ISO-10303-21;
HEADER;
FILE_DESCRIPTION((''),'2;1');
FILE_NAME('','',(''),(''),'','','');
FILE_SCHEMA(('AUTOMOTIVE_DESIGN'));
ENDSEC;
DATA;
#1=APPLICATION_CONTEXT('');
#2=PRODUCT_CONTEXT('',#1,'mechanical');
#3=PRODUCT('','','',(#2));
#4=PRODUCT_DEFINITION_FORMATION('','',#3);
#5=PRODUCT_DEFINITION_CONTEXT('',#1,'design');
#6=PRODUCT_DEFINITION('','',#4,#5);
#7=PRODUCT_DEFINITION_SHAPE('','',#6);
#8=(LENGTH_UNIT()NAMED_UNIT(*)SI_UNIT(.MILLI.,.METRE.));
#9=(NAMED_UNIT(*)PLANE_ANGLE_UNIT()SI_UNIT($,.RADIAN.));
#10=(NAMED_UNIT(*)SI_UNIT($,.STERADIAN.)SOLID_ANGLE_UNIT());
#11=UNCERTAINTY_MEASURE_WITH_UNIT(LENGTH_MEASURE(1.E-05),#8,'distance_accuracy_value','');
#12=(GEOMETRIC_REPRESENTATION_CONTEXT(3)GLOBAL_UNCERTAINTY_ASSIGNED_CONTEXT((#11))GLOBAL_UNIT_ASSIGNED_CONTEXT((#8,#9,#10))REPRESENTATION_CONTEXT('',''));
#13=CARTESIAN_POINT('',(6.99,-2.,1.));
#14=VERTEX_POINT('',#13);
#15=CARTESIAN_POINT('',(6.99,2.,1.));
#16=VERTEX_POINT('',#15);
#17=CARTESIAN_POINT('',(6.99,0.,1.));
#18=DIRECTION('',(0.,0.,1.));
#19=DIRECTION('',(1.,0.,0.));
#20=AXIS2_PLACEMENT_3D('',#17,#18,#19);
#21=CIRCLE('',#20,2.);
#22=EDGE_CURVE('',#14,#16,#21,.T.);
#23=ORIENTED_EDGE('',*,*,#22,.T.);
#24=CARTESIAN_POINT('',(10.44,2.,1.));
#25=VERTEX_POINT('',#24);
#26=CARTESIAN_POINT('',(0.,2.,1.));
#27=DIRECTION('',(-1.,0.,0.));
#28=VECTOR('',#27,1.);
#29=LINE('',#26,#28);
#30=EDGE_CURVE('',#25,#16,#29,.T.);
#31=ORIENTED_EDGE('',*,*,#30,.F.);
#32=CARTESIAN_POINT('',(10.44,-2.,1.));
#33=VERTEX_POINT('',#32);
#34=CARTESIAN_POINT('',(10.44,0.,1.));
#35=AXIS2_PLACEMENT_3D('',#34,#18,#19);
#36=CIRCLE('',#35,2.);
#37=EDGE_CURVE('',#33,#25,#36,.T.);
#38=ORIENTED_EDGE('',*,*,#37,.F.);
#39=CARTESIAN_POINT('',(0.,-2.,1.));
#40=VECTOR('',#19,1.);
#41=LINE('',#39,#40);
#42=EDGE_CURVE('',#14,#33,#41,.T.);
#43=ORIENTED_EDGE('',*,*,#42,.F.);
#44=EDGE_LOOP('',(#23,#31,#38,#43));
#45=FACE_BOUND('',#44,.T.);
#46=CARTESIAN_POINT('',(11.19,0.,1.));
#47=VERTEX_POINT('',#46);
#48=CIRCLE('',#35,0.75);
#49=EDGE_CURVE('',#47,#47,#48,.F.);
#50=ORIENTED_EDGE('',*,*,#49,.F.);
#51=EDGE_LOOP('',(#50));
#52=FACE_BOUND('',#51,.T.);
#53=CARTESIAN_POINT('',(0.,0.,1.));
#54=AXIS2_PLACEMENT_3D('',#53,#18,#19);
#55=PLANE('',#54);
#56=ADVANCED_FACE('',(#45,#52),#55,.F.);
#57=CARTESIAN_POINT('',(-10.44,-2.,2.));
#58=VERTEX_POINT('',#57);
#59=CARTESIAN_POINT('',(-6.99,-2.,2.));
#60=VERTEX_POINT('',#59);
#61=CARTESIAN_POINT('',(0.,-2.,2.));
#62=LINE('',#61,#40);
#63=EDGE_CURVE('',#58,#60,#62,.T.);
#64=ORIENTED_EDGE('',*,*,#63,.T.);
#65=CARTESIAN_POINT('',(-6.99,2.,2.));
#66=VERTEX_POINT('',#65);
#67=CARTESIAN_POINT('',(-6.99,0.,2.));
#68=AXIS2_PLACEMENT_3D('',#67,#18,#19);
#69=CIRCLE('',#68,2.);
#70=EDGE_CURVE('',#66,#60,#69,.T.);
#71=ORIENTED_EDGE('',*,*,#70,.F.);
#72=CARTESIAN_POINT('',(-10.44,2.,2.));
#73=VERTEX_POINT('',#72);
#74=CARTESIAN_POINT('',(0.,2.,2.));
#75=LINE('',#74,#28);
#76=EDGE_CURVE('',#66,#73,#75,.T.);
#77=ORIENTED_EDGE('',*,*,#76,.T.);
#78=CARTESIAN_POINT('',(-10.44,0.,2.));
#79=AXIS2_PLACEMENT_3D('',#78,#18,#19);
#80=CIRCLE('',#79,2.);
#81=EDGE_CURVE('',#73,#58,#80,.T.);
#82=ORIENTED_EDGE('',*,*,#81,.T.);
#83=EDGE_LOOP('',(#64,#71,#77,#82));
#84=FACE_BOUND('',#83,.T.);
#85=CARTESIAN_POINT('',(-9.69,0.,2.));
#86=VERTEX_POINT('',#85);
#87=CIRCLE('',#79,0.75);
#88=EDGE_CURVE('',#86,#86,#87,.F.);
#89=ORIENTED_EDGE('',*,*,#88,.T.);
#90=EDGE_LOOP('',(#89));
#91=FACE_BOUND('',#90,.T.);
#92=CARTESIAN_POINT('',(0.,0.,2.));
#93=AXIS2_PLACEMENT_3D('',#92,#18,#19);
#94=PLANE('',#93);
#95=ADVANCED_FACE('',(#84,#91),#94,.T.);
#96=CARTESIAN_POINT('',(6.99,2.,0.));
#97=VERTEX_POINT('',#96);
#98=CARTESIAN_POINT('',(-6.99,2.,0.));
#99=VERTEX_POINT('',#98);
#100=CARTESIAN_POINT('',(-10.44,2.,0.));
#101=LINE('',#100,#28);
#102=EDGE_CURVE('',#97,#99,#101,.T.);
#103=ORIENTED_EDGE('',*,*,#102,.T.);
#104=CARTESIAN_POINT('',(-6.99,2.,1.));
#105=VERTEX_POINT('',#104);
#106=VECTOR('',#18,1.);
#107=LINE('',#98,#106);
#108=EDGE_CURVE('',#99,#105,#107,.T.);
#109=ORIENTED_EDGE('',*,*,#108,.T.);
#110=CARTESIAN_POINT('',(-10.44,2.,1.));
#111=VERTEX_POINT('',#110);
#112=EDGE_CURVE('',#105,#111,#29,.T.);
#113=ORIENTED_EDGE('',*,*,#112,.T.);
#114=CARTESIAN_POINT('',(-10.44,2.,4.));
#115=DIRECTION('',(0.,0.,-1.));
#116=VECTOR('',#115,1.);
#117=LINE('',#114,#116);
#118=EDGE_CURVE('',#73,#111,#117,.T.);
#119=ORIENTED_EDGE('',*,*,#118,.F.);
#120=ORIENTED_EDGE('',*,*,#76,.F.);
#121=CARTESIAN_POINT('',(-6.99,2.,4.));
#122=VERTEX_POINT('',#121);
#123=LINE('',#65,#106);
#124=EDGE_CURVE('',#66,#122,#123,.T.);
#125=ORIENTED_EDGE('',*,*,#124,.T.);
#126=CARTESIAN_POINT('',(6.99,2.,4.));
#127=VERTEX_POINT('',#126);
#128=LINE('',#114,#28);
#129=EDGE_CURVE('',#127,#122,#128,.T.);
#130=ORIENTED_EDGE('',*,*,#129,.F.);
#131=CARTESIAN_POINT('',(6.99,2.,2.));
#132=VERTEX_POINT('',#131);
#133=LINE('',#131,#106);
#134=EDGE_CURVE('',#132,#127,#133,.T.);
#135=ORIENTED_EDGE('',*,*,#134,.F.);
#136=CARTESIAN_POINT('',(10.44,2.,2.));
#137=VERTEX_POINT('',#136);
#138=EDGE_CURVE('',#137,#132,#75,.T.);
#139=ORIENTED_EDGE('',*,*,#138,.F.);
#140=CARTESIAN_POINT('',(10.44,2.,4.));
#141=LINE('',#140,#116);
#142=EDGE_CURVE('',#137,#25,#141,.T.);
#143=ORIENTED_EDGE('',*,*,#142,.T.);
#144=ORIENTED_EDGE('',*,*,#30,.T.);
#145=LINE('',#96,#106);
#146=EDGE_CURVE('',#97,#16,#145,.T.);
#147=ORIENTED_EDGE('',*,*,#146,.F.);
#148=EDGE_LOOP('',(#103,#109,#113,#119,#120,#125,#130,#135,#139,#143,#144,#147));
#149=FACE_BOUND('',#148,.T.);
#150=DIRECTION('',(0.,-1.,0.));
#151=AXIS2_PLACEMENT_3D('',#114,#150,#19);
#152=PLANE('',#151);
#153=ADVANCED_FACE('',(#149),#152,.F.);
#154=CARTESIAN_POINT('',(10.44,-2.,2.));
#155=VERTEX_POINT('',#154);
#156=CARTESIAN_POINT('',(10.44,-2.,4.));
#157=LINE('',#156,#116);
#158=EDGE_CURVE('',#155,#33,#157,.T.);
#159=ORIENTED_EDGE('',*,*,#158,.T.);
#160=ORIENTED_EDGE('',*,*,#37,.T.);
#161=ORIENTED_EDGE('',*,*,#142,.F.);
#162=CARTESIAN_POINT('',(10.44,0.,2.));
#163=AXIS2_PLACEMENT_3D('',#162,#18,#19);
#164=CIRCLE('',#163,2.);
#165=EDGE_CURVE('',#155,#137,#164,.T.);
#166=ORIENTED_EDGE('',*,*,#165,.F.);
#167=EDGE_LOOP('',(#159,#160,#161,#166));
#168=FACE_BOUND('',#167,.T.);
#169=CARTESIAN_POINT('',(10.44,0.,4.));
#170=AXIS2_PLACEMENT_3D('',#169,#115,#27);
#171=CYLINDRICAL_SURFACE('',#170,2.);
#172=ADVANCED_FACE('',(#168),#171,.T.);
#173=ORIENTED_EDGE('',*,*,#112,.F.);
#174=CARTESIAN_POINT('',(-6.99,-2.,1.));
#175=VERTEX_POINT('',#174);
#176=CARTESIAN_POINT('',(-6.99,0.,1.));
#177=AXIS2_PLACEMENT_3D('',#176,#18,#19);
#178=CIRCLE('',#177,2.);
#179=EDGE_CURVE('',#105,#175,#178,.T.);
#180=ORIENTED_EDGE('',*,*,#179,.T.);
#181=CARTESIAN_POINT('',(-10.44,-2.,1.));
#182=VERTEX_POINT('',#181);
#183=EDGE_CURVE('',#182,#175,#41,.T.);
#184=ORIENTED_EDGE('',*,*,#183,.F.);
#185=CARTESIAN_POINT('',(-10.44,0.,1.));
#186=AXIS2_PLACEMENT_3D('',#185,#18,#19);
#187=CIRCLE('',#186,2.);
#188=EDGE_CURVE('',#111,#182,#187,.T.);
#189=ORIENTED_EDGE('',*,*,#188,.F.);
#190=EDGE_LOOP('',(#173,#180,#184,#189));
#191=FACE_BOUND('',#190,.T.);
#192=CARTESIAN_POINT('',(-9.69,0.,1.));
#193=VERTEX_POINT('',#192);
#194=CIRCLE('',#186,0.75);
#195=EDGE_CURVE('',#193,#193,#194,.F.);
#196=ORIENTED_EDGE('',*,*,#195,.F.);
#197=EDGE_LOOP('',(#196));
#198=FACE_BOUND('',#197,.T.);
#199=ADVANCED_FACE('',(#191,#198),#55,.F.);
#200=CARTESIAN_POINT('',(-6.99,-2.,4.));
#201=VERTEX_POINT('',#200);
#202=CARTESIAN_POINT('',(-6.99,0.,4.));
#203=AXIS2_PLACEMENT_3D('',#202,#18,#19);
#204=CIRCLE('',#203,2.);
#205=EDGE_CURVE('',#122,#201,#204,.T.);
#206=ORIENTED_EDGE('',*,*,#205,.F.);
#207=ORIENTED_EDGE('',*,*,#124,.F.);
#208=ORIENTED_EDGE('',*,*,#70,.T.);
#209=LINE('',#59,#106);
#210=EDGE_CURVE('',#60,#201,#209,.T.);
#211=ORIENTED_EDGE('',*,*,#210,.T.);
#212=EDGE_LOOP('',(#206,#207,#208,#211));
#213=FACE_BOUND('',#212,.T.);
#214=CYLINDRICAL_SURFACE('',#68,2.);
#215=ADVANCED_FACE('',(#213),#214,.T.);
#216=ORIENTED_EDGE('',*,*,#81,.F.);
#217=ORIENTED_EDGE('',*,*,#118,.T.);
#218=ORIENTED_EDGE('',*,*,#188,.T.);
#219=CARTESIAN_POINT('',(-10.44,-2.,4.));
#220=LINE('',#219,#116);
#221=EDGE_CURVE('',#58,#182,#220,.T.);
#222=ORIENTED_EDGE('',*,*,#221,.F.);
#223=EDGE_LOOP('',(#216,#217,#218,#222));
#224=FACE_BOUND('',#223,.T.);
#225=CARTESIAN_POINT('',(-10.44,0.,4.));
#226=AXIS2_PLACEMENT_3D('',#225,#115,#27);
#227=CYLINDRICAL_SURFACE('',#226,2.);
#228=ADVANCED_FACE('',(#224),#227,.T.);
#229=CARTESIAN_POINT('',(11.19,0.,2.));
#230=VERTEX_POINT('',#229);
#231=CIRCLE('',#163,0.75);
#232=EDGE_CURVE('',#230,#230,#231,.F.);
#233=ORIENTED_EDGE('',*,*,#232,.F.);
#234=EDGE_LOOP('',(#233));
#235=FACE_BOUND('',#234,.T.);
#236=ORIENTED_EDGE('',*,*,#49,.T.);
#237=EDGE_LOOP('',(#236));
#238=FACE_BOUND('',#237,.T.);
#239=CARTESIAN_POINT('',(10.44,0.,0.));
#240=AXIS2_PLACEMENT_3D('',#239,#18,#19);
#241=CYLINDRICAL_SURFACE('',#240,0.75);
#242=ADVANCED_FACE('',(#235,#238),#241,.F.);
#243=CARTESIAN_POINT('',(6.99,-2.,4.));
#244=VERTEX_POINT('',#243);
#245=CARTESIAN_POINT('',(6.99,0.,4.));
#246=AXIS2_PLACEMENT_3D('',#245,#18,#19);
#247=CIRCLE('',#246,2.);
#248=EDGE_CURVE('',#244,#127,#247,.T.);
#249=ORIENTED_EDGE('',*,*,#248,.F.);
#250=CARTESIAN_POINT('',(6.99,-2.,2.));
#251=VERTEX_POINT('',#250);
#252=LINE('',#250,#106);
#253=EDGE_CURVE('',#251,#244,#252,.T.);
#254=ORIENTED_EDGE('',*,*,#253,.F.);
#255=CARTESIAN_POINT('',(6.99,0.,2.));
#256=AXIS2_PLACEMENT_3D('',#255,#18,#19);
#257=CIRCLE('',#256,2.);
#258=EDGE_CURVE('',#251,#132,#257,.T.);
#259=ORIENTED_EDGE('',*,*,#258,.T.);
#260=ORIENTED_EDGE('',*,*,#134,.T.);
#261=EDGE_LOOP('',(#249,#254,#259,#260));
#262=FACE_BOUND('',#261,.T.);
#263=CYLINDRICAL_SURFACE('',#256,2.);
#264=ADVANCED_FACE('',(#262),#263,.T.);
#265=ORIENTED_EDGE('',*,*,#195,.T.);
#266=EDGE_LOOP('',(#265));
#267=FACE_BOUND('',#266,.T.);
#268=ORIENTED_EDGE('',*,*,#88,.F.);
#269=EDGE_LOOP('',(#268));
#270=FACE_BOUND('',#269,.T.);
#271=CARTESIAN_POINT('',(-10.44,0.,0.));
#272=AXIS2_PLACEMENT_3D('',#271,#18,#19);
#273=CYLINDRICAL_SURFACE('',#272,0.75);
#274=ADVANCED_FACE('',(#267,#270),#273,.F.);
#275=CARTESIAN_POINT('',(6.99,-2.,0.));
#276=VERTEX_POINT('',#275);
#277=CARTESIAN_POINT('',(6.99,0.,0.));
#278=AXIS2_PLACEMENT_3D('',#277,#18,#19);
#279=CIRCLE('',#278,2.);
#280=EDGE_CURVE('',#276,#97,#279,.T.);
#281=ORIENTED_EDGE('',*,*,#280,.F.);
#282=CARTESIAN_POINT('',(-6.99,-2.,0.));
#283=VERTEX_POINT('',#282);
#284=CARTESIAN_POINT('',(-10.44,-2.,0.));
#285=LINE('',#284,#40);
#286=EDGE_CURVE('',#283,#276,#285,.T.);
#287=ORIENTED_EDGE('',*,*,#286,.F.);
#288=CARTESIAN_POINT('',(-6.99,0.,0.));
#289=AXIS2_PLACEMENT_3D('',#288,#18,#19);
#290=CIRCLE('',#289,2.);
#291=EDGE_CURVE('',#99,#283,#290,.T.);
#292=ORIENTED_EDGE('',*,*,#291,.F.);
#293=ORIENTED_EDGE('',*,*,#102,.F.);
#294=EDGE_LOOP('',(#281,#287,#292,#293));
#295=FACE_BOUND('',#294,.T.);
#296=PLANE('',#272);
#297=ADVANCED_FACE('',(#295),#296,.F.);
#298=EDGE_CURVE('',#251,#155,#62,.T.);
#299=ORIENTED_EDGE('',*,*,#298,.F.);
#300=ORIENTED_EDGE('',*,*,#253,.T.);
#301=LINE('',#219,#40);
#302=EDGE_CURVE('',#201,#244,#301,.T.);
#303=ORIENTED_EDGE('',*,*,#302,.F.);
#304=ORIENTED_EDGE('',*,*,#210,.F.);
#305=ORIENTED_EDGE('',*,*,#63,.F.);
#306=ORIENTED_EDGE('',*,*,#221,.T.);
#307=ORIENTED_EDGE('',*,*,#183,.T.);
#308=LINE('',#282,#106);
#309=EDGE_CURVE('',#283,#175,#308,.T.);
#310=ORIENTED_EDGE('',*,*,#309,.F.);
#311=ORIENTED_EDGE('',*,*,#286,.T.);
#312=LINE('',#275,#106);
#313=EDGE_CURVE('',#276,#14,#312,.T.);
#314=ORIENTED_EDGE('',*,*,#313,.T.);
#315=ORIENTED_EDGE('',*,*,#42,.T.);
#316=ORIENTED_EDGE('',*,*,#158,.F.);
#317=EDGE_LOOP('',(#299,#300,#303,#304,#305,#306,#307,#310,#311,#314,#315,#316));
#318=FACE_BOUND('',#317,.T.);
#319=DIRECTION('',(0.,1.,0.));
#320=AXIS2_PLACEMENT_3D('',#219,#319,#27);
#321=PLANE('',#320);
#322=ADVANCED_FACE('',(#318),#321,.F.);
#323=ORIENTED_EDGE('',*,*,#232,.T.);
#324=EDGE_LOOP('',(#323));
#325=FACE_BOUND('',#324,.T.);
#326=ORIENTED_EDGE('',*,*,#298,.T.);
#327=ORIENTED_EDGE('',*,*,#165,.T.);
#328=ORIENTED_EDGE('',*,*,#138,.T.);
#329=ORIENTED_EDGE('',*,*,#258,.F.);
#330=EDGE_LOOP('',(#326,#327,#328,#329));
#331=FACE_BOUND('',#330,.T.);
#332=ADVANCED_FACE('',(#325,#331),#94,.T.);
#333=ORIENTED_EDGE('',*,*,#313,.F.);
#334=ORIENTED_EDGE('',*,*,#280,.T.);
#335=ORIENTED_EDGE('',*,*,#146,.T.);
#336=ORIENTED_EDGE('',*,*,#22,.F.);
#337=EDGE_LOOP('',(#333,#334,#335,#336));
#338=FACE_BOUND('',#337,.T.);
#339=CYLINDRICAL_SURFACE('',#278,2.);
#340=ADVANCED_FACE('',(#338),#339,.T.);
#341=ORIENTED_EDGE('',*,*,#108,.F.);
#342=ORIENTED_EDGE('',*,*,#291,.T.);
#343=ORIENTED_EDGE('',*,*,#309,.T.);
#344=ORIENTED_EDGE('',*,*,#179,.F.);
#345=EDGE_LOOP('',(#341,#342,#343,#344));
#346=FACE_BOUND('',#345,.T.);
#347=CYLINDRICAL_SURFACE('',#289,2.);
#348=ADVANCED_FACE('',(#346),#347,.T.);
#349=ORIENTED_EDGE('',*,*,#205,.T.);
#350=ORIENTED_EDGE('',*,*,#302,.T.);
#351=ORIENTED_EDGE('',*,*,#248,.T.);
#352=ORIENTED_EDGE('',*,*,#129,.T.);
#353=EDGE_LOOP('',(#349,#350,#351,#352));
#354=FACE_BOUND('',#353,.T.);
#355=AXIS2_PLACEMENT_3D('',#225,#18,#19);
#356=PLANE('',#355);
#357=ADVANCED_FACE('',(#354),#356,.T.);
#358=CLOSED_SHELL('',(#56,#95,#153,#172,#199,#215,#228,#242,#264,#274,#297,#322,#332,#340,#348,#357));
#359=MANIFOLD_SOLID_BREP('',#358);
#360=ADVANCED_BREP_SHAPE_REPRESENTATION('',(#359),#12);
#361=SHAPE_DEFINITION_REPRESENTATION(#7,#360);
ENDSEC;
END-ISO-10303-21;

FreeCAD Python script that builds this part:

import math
import FreeCAD as App
import Part
import Sketcher
from FreeCAD import Vector

doc = App.newDocument("Part")
body = doc.addObject("PartDesign::Body", "Body")

# Sketch on XY plane
sketch1 = body.newObject("Sketcher::SketchObject", "Sketch")
sketch1.AttachmentSupport = (doc.getObject("XY_Plane"), [""])
sketch1.MapMode = "FlatFace"
sketch1.addGeometry([
    Part.LineSegment(Vector(10.4, 2, 0), Vector(-10.4, 2, 0)),
    Part.ArcOfCircle(Part.Circle(Vector(-10.4, 0, 0), Vector(0, 0, 1), 2), math.radians(90), math.radians(270)),
    Part.LineSegment(Vector(-10.4, -2, 0), Vector(10.4, -2, 0)),
    Part.ArcOfCircle(Part.Circle(Vector(10.4, 0, 0), Vector(0, 0, 1), 2), math.radians(-90), math.radians(90)),
], False)
sketch1.addConstraint([
    Sketcher.Constraint("Tangent", 0, 2, 1, 1),
    Sketcher.Constraint("Tangent", 1, 2, 2, 1),
    Sketcher.Constraint("Tangent", 2, 2, 3, 1),
    Sketcher.Constraint("Tangent", 3, 2, 0, 1),
    Sketcher.Constraint("Horizontal", 0),
    Sketcher.Constraint("Horizontal", 2),
    Sketcher.Constraint("Symmetric", 1, 3, 3, 3, -1, 1),
    Sketcher.Constraint("Radius", 1, 2.0),
    Sketcher.Constraint("DistanceX", 0, 2, 0, 1, 20.88),
])
pad1 = body.newObject("PartDesign::Pad", "Pad")
pad1.Profile = sketch1
pad1.Length = 4

# Sketch on XY plane
sketch2 = body.newObject("Sketcher::SketchObject", "Sketch001")
sketch2.AttachmentSupport = (doc.getObject("XY_Plane"), [""])
sketch2.MapMode = "FlatFace"
sketch2.AttachmentOffset = App.Placement(Vector(0, 0, 4), App.Rotation())
sketch2.addGeometry([
    Part.Circle(Vector(-10.4, 0, 0), Vector(0, 0, 1), 0.8),
    Part.Circle(Vector(10.4, 0, 0), Vector(0, 0, 1), 0.8),
], False)
sketch2.addConstraint([
    Sketcher.Constraint("Equal", 0, 1),
    Sketcher.Constraint("Symmetric", 0, 3, 1, 3, -1, 1),
    Sketcher.Constraint("PointOnObject", 0, 3, -1),
    Sketcher.Constraint("Diameter", 0, 1.5),
    Sketcher.Constraint("DistanceX", 0, 3, -1, 1, 10.44),
])
pocket1 = body.newObject("PartDesign::Pocket", "Pocket")
pocket1.Profile = sketch2
pocket1.Length = 4

# Sketch on XY plane
sketch3 = body.newObject("Sketcher::SketchObject", "Sketch002")
sketch3.AttachmentSupport = (doc.getObject("XY_Plane"), [""])
sketch3.MapMode = "FlatFace"
sketch3.AttachmentOffset = App.Placement(Vector(0, 0, 4), App.Rotation())
sketch3.addGeometry([
    Part.ArcOfCircle(Part.Circle(Vector(-7, 0, 0), Vector(0, 0, 1), 2), math.radians(90), math.radians(270)),  # 0
    Part.LineSegment(Vector(-7, 2, 0), Vector(-10.4, 2, 0)),  # 1
    Part.ArcOfCircle(Part.Circle(Vector(-10.4, 0, 0), Vector(0, 0, 1), 2), math.radians(90), math.radians(270)),  # 2
    Part.LineSegment(Vector(-10.4, -2, 0), Vector(-7, -2, 0)),  # 3
    Part.Circle(Vector(-10.4, 0, 0), Vector(0, 0, 1), 0.8),  # 4
    Part.LineSegment(Vector(10.4, 2, 0), Vector(7, 2, 0)),  # 5
    Part.ArcOfCircle(Part.Circle(Vector(7, 0, 0), Vector(0, 0, 1), 2), math.radians(-90), math.radians(90)),  # 6
    Part.LineSegment(Vector(7, -2, 0), Vector(10.4, -2, 0)),  # 7
    Part.ArcOfCircle(Part.Circle(Vector(10.4, 0, 0), Vector(0, 0, 1), 2), math.radians(-90), math.radians(90)),  # 8
    Part.Circle(Vector(10.4, 0, 0), Vector(0, 0, 1), 0.8),  # 9
], False)
sketch3.addConstraint([
    Sketcher.Constraint("Tangent", 0, 1, 1, 1),
    Sketcher.Constraint("Tangent", 1, 2, 2, 1),
    Sketcher.Constraint("Tangent", 2, 2, 3, 1),
    Sketcher.Constraint("Tangent", 3, 2, 0, 2),
    Sketcher.Constraint("Tangent", 5, 2, 6, 2),
    Sketcher.Constraint("Tangent", 6, 1, 7, 1),
    Sketcher.Constraint("Tangent", 7, 2, 8, 1),
    Sketcher.Constraint("Tangent", 8, 2, 5, 1),
    Sketcher.Constraint("Horizontal", 1),
    Sketcher.Constraint("Horizontal", 3),
    Sketcher.Constraint("Horizontal", 5),
    Sketcher.Constraint("Horizontal", 7),
    Sketcher.Constraint("Coincident", 4, 3, 2, 3),
    Sketcher.Constraint("Coincident", 9, 3, 8, 3),
    Sketcher.Constraint("Equal", 2, 6),
    Sketcher.Constraint("Equal", 4, 9),
    Sketcher.Constraint("Symmetric", 0, 3, 6, 3, -1, 1),
    Sketcher.Constraint("Symmetric", 2, 3, 8, 3, -2),
    Sketcher.Constraint("Radius", 0, 2.0),
    Sketcher.Constraint("Diameter", 4, 1.5),
    Sketcher.Constraint("DistanceX", 1, 2, 1, 1, 3.45),
    Sketcher.Constraint("DistanceX", 0, 3, -1, 1, 6.99),
])
pocket2 = body.newObject("PartDesign::Pocket", "Pocket001")
pocket2.Profile = sketch3
pocket2.Length = 2

# Sketch on XY plane
sketch4 = body.newObject("Sketcher::SketchObject", "Sketch003")
sketch4.AttachmentSupport = (doc.getObject("XY_Plane"), [""])
sketch4.MapMode = "FlatFace"
sketch4.AttachmentOffset = App.Placement(Vector(0, 0, 1), App.Rotation())
sketch4.addGeometry([
    Part.ArcOfCircle(Part.Circle(Vector(-7, 0, 0), Vector(0, 0, 1), 2), math.radians(90), math.radians(270)),  # 0
    Part.LineSegment(Vector(-7, 2, 0), Vector(-10.4, 2, 0)),  # 1
    Part.ArcOfCircle(Part.Circle(Vector(-10.4, 0, 0), Vector(0, 0, 1), 2), math.radians(90), math.radians(270)),  # 2
    Part.LineSegment(Vector(-10.4, -2, 0), Vector(-7, -2, 0)),  # 3
    Part.Circle(Vector(-10.4, 0, 0), Vector(0, 0, 1), 0.8),  # 4
    Part.LineSegment(Vector(10.4, 2, 0), Vector(7, 2, 0)),  # 5
    Part.ArcOfCircle(Part.Circle(Vector(7, 0, 0), Vector(0, 0, 1), 2), math.radians(-90), math.radians(90)),  # 6
    Part.LineSegment(Vector(7, -2, 0), Vector(10.4, -2, 0)),  # 7
    Part.ArcOfCircle(Part.Circle(Vector(10.4, 0, 0), Vector(0, 0, 1), 2), math.radians(-90), math.radians(90)),  # 8
    Part.Circle(Vector(10.4, 0, 0), Vector(0, 0, 1), 0.8),  # 9
], False)
sketch4.addConstraint([
    Sketcher.Constraint("Tangent", 0, 1, 1, 1),
    Sketcher.Constraint("Tangent", 1, 2, 2, 1),
    Sketcher.Constraint("Tangent", 2, 2, 3, 1),
    Sketcher.Constraint("Tangent", 3, 2, 0, 2),
    Sketcher.Constraint("Tangent", 5, 2, 6, 2),
    Sketcher.Constraint("Tangent", 6, 1, 7, 1),
    Sketcher.Constraint("Tangent", 7, 2, 8, 1),
    Sketcher.Constraint("Tangent", 8, 2, 5, 1),
    Sketcher.Constraint("Horizontal", 1),
    Sketcher.Constraint("Horizontal", 3),
    Sketcher.Constraint("Horizontal", 5),
    Sketcher.Constraint("Horizontal", 7),
    Sketcher.Constraint("Coincident", 4, 3, 2, 3),
    Sketcher.Constraint("Coincident", 9, 3, 8, 3),
    Sketcher.Constraint("Equal", 2, 6),
    Sketcher.Constraint("Equal", 4, 9),
    Sketcher.Constraint("Symmetric", 0, 3, 6, 3, -1, 1),
    Sketcher.Constraint("Symmetric", 2, 3, 8, 3, -2),
    Sketcher.Constraint("Radius", 0, 2.0),
    Sketcher.Constraint("Diameter", 4, 1.5),
    Sketcher.Constraint("DistanceX", 1, 2, 1, 1, 3.45),
    Sketcher.Constraint("DistanceX", 0, 3, -1, 1, 6.99),
])
pocket3 = body.newObject("PartDesign::Pocket", "Pocket002")
pocket3.Profile = sketch4
pocket3.Length = 1

doc.recompute()
